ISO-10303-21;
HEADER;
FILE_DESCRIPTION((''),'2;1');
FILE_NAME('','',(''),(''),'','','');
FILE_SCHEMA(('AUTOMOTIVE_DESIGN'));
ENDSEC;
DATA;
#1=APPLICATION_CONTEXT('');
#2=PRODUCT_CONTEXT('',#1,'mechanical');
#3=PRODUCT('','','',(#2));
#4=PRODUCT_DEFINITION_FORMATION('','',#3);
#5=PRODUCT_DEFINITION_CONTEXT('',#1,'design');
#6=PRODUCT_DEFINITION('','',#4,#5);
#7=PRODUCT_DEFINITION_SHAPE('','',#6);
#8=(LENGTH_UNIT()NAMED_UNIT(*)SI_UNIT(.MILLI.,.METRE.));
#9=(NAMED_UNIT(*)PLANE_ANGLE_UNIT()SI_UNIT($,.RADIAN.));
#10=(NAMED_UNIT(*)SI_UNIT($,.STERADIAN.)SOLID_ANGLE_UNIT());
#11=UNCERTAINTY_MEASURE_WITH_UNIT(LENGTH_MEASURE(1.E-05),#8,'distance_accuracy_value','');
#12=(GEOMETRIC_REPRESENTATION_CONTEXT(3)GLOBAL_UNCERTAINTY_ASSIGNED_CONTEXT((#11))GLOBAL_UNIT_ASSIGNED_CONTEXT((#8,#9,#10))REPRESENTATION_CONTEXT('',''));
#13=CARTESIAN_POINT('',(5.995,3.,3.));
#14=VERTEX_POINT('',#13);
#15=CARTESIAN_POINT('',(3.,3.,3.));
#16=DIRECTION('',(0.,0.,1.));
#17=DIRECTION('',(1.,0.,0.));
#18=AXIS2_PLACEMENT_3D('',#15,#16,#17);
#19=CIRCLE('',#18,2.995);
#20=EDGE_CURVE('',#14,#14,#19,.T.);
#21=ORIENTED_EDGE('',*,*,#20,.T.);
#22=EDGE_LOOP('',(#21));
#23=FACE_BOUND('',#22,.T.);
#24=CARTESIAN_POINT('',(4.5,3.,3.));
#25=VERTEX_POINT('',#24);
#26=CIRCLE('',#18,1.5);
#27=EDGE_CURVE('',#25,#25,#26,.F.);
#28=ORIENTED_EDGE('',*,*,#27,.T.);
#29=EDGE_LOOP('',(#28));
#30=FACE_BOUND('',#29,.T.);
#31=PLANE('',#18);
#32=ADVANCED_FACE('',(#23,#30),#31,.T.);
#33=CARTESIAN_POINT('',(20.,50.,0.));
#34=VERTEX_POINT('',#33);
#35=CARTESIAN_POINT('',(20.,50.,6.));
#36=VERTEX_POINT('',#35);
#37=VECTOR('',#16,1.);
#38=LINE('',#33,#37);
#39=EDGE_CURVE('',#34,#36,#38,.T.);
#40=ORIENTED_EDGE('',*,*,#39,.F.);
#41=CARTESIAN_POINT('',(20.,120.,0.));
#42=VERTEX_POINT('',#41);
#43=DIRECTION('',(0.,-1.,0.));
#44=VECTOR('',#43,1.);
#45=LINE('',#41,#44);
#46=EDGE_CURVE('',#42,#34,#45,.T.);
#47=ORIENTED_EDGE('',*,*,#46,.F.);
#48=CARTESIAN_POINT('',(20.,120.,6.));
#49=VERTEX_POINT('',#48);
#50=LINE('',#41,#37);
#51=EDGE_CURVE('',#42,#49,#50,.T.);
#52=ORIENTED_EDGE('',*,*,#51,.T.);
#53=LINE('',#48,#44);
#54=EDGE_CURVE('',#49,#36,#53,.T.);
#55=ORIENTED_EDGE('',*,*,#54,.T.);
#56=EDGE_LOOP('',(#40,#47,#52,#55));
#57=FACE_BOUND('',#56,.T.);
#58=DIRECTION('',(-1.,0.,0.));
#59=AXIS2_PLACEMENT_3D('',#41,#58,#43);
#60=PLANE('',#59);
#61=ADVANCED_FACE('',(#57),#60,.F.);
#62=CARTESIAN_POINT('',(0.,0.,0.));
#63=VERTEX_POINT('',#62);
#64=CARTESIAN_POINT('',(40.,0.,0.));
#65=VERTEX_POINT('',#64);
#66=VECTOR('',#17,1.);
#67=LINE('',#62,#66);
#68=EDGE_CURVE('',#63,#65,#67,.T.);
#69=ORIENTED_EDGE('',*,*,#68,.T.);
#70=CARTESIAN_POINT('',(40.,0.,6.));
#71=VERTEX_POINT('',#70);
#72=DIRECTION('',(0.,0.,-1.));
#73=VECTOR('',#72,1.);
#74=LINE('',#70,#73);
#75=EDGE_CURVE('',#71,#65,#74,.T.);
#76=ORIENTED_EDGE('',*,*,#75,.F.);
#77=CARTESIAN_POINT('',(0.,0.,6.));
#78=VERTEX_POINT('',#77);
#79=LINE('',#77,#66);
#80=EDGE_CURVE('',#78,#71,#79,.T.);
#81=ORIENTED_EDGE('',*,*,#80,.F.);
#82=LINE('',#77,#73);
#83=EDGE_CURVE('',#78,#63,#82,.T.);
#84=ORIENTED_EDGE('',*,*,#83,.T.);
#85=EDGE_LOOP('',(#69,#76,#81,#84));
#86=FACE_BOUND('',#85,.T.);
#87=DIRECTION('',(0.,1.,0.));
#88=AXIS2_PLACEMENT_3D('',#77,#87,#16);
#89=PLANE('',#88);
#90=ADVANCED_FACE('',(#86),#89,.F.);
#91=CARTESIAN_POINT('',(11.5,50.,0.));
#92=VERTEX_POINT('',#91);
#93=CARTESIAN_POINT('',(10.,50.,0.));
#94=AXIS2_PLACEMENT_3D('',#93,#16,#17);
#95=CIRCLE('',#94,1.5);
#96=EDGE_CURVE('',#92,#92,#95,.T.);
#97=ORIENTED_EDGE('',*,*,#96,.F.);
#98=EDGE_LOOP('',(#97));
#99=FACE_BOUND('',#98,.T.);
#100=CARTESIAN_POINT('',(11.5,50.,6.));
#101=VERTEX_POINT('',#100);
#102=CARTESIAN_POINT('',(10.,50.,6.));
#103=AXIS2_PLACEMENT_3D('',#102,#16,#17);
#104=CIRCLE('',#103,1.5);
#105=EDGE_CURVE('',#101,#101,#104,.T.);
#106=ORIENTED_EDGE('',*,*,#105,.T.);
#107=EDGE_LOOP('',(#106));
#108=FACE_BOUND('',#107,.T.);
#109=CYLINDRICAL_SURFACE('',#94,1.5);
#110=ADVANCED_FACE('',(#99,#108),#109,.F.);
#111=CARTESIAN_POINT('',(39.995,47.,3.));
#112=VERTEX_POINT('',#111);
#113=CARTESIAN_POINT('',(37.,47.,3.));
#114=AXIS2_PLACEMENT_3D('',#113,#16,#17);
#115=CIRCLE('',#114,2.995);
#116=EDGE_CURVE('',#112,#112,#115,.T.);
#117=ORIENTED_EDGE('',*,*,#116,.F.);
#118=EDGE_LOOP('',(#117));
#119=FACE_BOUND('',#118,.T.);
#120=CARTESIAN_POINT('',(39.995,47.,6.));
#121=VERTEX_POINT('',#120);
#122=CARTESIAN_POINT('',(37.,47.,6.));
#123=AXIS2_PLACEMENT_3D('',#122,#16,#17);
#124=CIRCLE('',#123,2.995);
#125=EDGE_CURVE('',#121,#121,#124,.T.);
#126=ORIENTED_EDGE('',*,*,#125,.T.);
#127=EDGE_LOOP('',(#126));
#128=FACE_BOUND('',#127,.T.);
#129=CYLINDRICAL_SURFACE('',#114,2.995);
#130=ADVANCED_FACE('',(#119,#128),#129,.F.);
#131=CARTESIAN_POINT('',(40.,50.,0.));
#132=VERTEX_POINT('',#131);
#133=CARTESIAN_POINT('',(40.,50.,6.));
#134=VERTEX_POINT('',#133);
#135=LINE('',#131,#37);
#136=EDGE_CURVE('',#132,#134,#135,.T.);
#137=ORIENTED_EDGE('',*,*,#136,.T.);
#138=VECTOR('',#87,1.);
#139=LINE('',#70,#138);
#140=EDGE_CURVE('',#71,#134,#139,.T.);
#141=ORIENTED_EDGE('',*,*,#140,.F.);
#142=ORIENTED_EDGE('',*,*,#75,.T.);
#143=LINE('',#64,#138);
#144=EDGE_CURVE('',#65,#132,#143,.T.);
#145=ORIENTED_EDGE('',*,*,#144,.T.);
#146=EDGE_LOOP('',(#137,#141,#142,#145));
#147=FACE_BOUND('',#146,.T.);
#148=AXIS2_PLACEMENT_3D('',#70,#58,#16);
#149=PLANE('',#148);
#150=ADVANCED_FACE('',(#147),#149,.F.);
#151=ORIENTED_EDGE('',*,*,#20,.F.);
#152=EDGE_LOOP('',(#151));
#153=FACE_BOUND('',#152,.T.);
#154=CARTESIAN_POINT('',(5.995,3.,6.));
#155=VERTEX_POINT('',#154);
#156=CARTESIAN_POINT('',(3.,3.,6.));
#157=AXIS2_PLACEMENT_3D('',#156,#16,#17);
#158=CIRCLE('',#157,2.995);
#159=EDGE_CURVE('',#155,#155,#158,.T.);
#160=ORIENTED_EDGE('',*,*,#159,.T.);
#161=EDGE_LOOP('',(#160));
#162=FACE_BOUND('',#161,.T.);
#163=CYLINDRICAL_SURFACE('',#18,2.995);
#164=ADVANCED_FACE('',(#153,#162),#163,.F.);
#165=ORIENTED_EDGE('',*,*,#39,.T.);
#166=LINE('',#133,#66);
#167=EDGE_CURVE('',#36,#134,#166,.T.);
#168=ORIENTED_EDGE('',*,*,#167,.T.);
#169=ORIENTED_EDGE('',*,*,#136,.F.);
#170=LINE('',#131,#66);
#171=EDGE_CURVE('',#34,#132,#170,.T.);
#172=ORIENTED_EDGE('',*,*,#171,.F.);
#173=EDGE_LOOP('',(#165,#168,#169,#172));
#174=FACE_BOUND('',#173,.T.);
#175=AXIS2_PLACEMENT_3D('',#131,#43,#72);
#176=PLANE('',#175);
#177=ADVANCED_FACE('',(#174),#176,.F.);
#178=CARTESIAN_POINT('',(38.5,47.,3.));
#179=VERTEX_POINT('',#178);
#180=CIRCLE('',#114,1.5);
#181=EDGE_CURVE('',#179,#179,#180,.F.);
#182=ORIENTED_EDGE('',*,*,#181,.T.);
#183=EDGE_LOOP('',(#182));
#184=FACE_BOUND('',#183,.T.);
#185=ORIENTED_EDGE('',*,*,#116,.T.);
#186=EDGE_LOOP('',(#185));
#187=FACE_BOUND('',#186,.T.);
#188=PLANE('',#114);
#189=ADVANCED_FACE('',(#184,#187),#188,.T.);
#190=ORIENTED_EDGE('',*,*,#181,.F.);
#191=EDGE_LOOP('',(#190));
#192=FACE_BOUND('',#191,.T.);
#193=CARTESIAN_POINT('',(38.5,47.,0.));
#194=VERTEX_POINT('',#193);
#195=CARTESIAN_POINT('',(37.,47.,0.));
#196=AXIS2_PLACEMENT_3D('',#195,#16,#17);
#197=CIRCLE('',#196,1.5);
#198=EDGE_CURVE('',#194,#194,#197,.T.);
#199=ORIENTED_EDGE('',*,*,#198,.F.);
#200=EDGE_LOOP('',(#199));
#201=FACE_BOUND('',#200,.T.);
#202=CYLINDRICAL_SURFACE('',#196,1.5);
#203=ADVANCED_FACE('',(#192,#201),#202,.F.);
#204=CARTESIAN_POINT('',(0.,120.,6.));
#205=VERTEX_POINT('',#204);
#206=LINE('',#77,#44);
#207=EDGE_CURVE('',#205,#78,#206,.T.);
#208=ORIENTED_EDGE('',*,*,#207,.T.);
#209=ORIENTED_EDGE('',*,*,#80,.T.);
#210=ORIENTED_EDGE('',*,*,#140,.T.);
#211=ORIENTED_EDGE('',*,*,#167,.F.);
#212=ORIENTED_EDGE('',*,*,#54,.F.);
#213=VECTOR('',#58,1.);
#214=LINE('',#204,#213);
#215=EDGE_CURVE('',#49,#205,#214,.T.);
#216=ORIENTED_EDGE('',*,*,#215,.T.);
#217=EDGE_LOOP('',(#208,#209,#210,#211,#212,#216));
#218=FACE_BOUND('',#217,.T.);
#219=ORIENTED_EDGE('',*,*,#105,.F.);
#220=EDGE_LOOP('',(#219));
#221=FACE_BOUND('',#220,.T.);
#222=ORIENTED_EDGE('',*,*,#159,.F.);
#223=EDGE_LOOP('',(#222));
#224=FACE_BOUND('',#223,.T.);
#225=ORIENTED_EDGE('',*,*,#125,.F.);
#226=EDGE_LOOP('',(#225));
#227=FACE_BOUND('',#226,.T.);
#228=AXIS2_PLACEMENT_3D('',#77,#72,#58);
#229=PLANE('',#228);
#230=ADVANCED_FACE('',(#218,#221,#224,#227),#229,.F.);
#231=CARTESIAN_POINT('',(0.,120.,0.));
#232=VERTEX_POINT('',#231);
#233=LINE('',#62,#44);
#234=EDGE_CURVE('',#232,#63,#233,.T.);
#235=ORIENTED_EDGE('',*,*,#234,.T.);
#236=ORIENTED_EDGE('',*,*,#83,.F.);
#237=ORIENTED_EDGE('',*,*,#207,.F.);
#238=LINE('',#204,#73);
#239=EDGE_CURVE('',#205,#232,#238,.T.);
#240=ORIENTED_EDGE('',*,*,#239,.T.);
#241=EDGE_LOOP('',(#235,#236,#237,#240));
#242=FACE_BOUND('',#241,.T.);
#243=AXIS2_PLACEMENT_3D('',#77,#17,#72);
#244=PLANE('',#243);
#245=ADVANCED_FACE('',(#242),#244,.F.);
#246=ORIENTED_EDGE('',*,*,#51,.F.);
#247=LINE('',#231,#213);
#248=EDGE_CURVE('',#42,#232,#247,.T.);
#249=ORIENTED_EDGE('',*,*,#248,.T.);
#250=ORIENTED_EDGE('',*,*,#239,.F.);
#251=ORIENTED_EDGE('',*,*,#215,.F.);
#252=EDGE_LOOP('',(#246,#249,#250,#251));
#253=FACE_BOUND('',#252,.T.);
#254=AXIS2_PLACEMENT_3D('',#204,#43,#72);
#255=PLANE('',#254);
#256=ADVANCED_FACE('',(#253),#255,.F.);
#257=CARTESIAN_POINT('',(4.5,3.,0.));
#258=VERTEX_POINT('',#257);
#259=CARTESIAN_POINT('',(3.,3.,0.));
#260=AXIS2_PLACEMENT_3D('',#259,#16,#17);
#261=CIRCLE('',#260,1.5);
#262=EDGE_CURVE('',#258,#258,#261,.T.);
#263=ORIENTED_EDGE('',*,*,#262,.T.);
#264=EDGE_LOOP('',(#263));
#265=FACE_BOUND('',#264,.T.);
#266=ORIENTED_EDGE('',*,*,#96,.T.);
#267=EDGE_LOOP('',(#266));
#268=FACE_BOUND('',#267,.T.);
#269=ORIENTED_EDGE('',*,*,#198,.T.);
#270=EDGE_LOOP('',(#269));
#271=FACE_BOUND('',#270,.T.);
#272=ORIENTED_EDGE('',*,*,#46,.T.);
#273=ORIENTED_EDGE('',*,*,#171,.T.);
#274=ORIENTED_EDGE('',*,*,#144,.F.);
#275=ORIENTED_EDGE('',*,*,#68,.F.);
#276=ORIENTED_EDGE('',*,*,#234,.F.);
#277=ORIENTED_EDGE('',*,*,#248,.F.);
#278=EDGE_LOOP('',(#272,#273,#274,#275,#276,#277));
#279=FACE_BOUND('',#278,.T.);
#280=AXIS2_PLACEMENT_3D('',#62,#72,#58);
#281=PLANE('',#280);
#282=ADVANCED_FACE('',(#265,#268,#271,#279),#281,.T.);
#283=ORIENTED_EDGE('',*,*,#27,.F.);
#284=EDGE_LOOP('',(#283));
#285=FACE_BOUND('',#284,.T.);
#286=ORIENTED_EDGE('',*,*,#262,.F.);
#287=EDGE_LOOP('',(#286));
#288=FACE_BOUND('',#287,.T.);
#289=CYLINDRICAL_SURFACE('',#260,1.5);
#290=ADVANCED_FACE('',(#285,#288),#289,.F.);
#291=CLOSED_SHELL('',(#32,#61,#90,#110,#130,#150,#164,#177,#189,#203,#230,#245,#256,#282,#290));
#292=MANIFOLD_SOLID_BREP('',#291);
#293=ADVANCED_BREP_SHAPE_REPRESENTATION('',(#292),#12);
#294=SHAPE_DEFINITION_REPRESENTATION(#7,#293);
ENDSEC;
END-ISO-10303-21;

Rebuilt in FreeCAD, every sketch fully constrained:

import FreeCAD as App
import Part
import Sketcher
from FreeCAD import Vector
Q = App.Units.Quantity

doc = App.newDocument("Part")
body = doc.addObject("PartDesign::Body", "Body")

# Sketch on XY plane
sketch1 = body.newObject("Sketcher::SketchObject", "Sketch")
sketch1.AttachmentSupport = (doc.getObject("XY_Plane"), [""])
sketch1.MapMode = "FlatFace"
sketch1.addGeometry([
    Part.LineSegment(Vector(0, 120, 0), Vector(0, 0, 0)),
    Part.LineSegment(Vector(0, 0, 0), Vector(40, 0, 0)),
    Part.LineSegment(Vector(40, 0, 0), Vector(40, 120, 0)),
    Part.LineSegment(Vector(40, 120, 0), Vector(0, 120, 0)),
], False)
sketch1.addConstraint([
    Sketcher.Constraint("Coincident", 0, 2, 1, 1),
    Sketcher.Constraint("Coincident", 1, 2, 2, 1),
    Sketcher.Constraint("Coincident", 2, 2, 3, 1),
    Sketcher.Constraint("Coincident", 3, 2, 0, 1),
    Sketcher.Constraint("Vertical", 0),
    Sketcher.Constraint("Horizontal", 1),
    Sketcher.Constraint("Vertical", 2),
    Sketcher.Constraint("Horizontal", 3),
    Sketcher.Constraint("Coincident", 0, 2, -1, 1),
    Sketcher.Constraint("DistanceX", 1, 1, 1, 2, Q("40 mm")),
    Sketcher.Constraint("DistanceY", 0, 2, 0, 1, Q("120 mm")),
])
pad1 = body.newObject("PartDesign::Pad", "Pad")
pad1.Profile = sketch1
pad1.Length = 6

# Sketch on XY plane
sketch2 = body.newObject("Sketcher::SketchObject", "Sketch001")
sketch2.AttachmentSupport = (doc.getObject("XY_Plane"), [""])
sketch2.MapMode = "FlatFace"
sketch2.AttachmentOffset = App.Placement(Vector(0, 0, 6), App.Rotation())
sketch2.addGeometry([
    Part.LineSegment(Vector(20, 120, 0), Vector(20, 50, 0)),
    Part.LineSegment(Vector(20, 50, 0), Vector(40, 50, 0)),
    Part.LineSegment(Vector(40, 50, 0), Vector(40, 120, 0)),
    Part.LineSegment(Vector(40, 120, 0), Vector(20, 120, 0)),
], False)
sketch2.addConstraint([
    Sketcher.Constraint("Coincident", 0, 2, 1, 1),
    Sketcher.Constraint("Coincident", 1, 2, 2, 1),
    Sketcher.Constraint("Coincident", 2, 2, 3, 1),
    Sketcher.Constraint("Coincident", 3, 2, 0, 1),
    Sketcher.Constraint("Vertical", 0),
    Sketcher.Constraint("Horizontal", 1),
    Sketcher.Constraint("Vertical", 2),
    Sketcher.Constraint("Horizontal", 3),
    Sketcher.Constraint("DistanceX", 1, 1, 1, 2, Q("20 mm")),
    Sketcher.Constraint("DistanceY", 0, 2, 0, 1, Q("70 mm")),
    Sketcher.Constraint("DistanceX", -1, 1, 0, 2, Q("20 mm")),
    Sketcher.Constraint("DistanceY", -1, 1, 0, 2, Q("50 mm")),
])
pocket1 = body.newObject("PartDesign::Pocket", "Pocket")
pocket1.Profile = sketch2
pocket1.Length = 6

# Sketch on XY plane
sketch3 = body.newObject("Sketcher::SketchObject", "Sketch002")
sketch3.AttachmentSupport = (doc.getObject("XY_Plane"), [""])
sketch3.MapMode = "FlatFace"
sketch3.AttachmentOffset = App.Placement(Vector(0, 0, 6), App.Rotation())
sketch3.addGeometry([
    Part.Circle(Vector(3, 3, 0), Vector(0, 0, 1), 1.5),
    Part.Circle(Vector(37, 47, 0), Vector(0, 0, 1), 1.5),
], False)
sketch3.addConstraint([
    Sketcher.Constraint("Equal", 0, 1),
    Sketcher.Constraint("Diameter", 0, Q("3 mm")),
    Sketcher.Constraint("DistanceX", -1, 1, 0, 3, Q("3 mm")),
    Sketcher.Constraint("DistanceY", -1, 1, 0, 3, Q("3 mm")),
    Sketcher.Constraint("DistanceX", -1, 1, 1, 3, Q("37 mm")),
    Sketcher.Constraint("DistanceY", -1, 1, 1, 3, Q("47 mm")),
])
pocket2 = body.newObject("PartDesign::Pocket", "Pocket001")
pocket2.Profile = sketch3
pocket2.Length = 6

# Sketch on XY plane
sketch4 = body.newObject("Sketcher::SketchObject", "Sketch003")
sketch4.AttachmentSupport = (doc.getObject("XY_Plane"), [""])
sketch4.MapMode = "FlatFace"
sketch4.AttachmentOffset = App.Placement(Vector(0, 0, 6), App.Rotation())
sketch4.addGeometry([
    Part.Circle(Vector(3, 3, 0), Vector(0, 0, 1), 2.995),
    Part.Circle(Vector(37, 47, 0), Vector(0, 0, 1), 2.995),
], False)
sketch4.addConstraint([
    Sketcher.Constraint("Equal", 0, 1),
    Sketcher.Constraint("Diameter", 0, Q("5.99 mm")),
    Sketcher.Constraint("DistanceX", -1, 1, 0, 3, Q("3 mm")),
    Sketcher.Constraint("DistanceY", -1, 1, 0, 3, Q("3 mm")),
    Sketcher.Constraint("DistanceX", -1, 1, 1, 3, Q("37 mm")),
    Sketcher.Constraint("DistanceY", -1, 1, 1, 3, Q("47 mm")),
])
pocket3 = body.newObject("PartDesign::Pocket", "Pocket002")
pocket3.Profile = sketch4
pocket3.Length = 3

# Sketch on XY plane
sketch5 = body.newObject("Sketcher::SketchObject", "Sketch004")
sketch5.AttachmentSupport = (doc.getObject("XY_Plane"), [""])
sketch5.MapMode = "FlatFace"
sketch5.AttachmentOffset = App.Placement(Vector(0, 0, 6), App.Rotation())
sketch5.addGeometry(Part.Circle(Vector(10, 50, 0), Vector(0, 0, 1), 1.5), False)
sketch5.addConstraint([
    Sketcher.Constraint("Diameter", 0, Q("3 mm")),
    Sketcher.Constraint("DistanceX", -1, 1, 0, 3, Q("10 mm")),
    Sketcher.Constraint("DistanceY", -1, 1, 0, 3, Q("50 mm")),
])
pocket4 = body.newObject("PartDesign::Pocket", "Pocket003")
pocket4.Profile = sketch5
pocket4.Length = 6

doc.recompute()
